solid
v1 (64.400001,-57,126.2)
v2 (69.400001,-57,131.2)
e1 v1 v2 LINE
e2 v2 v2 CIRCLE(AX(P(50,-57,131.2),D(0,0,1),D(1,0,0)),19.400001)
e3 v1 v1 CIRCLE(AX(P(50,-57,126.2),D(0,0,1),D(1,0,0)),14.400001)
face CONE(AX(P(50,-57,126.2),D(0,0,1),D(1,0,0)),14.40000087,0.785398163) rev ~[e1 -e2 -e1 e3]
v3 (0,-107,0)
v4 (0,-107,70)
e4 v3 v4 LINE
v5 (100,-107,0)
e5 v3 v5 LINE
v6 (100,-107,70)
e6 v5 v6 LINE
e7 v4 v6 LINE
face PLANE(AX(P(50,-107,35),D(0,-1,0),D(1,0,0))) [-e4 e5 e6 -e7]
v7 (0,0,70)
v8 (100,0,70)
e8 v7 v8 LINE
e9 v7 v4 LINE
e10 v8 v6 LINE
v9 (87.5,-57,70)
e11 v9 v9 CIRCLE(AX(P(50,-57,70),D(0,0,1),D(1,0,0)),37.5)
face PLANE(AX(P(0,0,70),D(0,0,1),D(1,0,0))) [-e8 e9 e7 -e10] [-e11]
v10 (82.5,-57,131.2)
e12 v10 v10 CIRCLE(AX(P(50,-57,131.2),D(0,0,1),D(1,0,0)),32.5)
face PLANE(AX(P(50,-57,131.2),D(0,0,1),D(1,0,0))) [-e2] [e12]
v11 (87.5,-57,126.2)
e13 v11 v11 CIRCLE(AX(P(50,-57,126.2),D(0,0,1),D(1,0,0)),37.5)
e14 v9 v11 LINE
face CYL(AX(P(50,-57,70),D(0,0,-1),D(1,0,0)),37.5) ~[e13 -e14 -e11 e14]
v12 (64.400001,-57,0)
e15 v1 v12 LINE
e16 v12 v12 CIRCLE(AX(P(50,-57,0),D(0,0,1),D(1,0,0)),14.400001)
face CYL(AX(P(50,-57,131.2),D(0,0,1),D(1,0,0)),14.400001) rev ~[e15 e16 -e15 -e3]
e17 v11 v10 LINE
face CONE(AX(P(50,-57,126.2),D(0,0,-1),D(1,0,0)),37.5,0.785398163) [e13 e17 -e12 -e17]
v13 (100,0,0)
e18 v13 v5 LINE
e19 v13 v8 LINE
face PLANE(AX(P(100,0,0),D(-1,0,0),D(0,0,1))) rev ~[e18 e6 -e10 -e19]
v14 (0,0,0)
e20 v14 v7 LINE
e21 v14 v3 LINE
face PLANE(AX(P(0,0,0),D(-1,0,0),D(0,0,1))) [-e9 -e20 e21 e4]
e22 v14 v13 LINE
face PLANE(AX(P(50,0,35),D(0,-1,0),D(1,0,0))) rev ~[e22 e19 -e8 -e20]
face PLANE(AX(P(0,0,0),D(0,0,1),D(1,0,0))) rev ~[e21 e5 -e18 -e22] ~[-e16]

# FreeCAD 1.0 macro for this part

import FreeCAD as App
import Part
import Sketcher

V = App.Vector
Q = App.Units.Quantity


def edges_at(feature, points):
    """Names of the edges that pass closest to the given points."""
    edges = feature.Shape.Edges
    near = lambda p: min(range(len(edges)), key=lambda i: edges[i].distToShape(Part.Vertex(*p))[0])
    return sorted({f"Edge{near(p) + 1}" for p in points})


def add_polygon(sketch, points):
    """Adds a closed chain of lines whose ends are joined by coincident constraints."""
    first, n = sketch.GeometryCount, len(points)
    for a, b in zip(points, points[1:] + points[:1]):
        sketch.addGeometry(Part.LineSegment(App.Vector(*a, 0), App.Vector(*b, 0)), False)
    for i in range(n):
        sketch.addConstraint(Sketcher.Constraint("Coincident", first + i, 2, first + (i + 1) % n, 1))

doc = App.newDocument("Part")
params = doc.addObject("Spreadsheet::Sheet", "Params")
for row, (alias, value) in enumerate([
    ("sketch1_width", "100 mm"),
    ("sketch1_height", "70 mm"),
    ("pad1_length", "107 mm"),
    ("sketch2_diameter", "75 mm"),
    ("pad2_length", "61.2 mm"),
    ("sketch3_diameter", "28.800002 mm"),
    ("chamfer_size", "5 mm"),
], start=1):
    params.set(f"A{row}", alias)
    params.set(f"B{row}", "=" + value)
    params.setAlias(f"B{row}", alias)

body = doc.addObject("PartDesign::Body", "Body")

sketch1 = doc.addObject("Sketcher::SketchObject", "Sketch")
body.addObject(sketch1)
sketch1.AttachmentSupport = (doc.XZ_Plane, [""])
sketch1.MapMode = "FlatFace"
add_polygon(sketch1, [(0, 70), (0, 0), (100, 0), (100, 70)])
sketch1.addConstraint([
    Sketcher.Constraint("Vertical", 0),
    Sketcher.Constraint("Horizontal", 1),
    Sketcher.Constraint("Vertical", 2),
    Sketcher.Constraint("Horizontal", 3),
    Sketcher.Constraint("Coincident", 0, 2, -1, 1),
    Sketcher.Constraint("DistanceX", 1, 1, 1, 2, Q("100 mm")),
    Sketcher.Constraint("DistanceY", 0, 2, 0, 1, Q("70 mm")),
])
sketch1.setExpression("Constraints[9]", "Params.sketch1_width")
sketch1.setExpression("Constraints[10]", "Params.sketch1_height")
pad1 = doc.addObject("PartDesign::Pad", "Pad")
body.addObject(pad1)
pad1.Profile = sketch1
pad1.setExpression("Length", "Params.pad1_length")

sketch2 = doc.addObject("Sketcher::SketchObject", "Sketch001")
body.addObject(sketch2)
sketch2.AttachmentSupport = (doc.XY_Plane, [""])
sketch2.MapMode = "FlatFace"
sketch2.AttachmentOffset = App.Placement(V(0, 0, 70), App.Rotation())
sketch2.addGeometry(Part.Circle(V(50, -57, 0), V(0, 0, 1), 38), False)
sketch2.addConstraint([
    Sketcher.Constraint("Diameter", 0, Q("75 mm")),
    Sketcher.Constraint("DistanceX", -1, 1, 0, 3, Q("50 mm")),
    Sketcher.Constraint("DistanceY", 0, 3, -1, 1, Q("57 mm")),
])
sketch2.setExpression("Constraints[0]", "Params.sketch2_diameter")
pad2 = doc.addObject("PartDesign::Pad", "Pad001")
body.addObject(pad2)
pad2.Profile = sketch2
pad2.setExpression("Length", "Params.pad2_length")

sketch3 = doc.addObject("Sketcher::SketchObject", "Sketch002")
body.addObject(sketch3)
sketch3.AttachmentSupport = (doc.XY_Plane, [""])
sketch3.MapMode = "FlatFace"
sketch3.AttachmentOffset = App.Placement(V(0, 0, 131.2), App.Rotation())
sketch3.addGeometry(Part.Circle(V(50, -57, 0), V(0, 0, 1), 14), False)
sketch3.addConstraint([
    Sketcher.Constraint("Diameter", 0, Q("28.800002 mm")),
    Sketcher.Constraint("DistanceX", -1, 1, 0, 3, Q("50 mm")),
    Sketcher.Constraint("DistanceY", 0, 3, -1, 1, Q("57 mm")),
])
sketch3.setExpression("Constraints[0]", "Params.sketch3_diameter")
pocket1 = doc.addObject("PartDesign::Pocket", "Pocket")
body.addObject(pocket1)
pocket1.Profile = sketch3
pocket1.Type = "ThroughAll"
doc.recompute()

chamfer = doc.addObject("PartDesign::Chamfer", "Chamfer")
body.addObject(chamfer)
chamfer.Base = (pocket1, edges_at(pocket1, [(12.5, -57, 131.2), (35.6, -57, 131.2)]))
chamfer.setExpression("Size", "Params.chamfer_size")

doc.recompute()
